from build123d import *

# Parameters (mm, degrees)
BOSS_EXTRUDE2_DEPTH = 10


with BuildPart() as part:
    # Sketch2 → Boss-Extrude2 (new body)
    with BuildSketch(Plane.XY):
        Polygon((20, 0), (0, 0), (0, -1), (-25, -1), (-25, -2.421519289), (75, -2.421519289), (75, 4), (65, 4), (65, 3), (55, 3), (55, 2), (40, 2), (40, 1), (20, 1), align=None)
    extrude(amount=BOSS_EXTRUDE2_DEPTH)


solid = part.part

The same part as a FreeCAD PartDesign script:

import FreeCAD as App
import Part
import Sketcher
from FreeCAD import Vector

doc = App.newDocument("Part")
body = doc.addObject("PartDesign::Body", "Body")

# Sketch on XY plane
sketch1 = doc.addObject("Sketcher::SketchObject", "Sketch")
body.addObject(sketch1)
sketch1.AttachmentSupport = (doc.XY_Plane, [""])
sketch1.MapMode = "FlatFace"
sketch1.addGeometry(Part.LineSegment(Vector(20, 0, 0), Vector(0, 0, 0)), False)
sketch1.addGeometry(Part.LineSegment(Vector(0, 0, 0), Vector(0, -1, 0)), False)
sketch1.addGeometry(Part.LineSegment(Vector(0, -1, 0), Vector(-25, -1, 0)), False)
sketch1.addGeometry(Part.LineSegment(Vector(-25, -1, 0), Vector(-25, -2.4, 0)), False)
sketch1.addGeometry(Part.LineSegment(Vector(-25, -2.4, 0), Vector(75, -2.4, 0)), False)
sketch1.addGeometry(Part.LineSegment(Vector(75, -2.4, 0), Vector(75, 4, 0)), False)
sketch1.addGeometry(Part.LineSegment(Vector(75, 4, 0), Vector(65, 4, 0)), False)
sketch1.addGeometry(Part.LineSegment(Vector(65, 4, 0), Vector(65, 3, 0)), False)
sketch1.addGeometry(Part.LineSegment(Vector(65, 3, 0), Vector(55, 3, 0)), False)
sketch1.addGeometry(Part.LineSegment(Vector(55, 3, 0), Vector(55, 2, 0)), False)
sketch1.addGeometry(Part.LineSegment(Vector(55, 2, 0), Vector(40, 2, 0)), False)
sketch1.addGeometry(Part.LineSegment(Vector(40, 2, 0), Vector(40, 1, 0)), False)
sketch1.addGeometry(Part.LineSegment(Vector(40, 1, 0), Vector(20, 1, 0)), False)
sketch1.addGeometry(Part.LineSegment(Vector(20, 1, 0), Vector(20, 0, 0)), False)
sketch1.addConstraint(Sketcher.Constraint("Coincident", 0, 2, 1, 1))
sketch1.addConstraint(Sketcher.Constraint("Coincident", 1, 2, 2, 1))
sketch1.addConstraint(Sketcher.Constraint("Coincident", 2, 2, 3, 1))
sketch1.addConstraint(Sketcher.Constraint("Coincident", 3, 2, 4, 1))
sketch1.addConstraint(Sketcher.Constraint("Coincident", 4, 2, 5, 1))
sketch1.addConstraint(Sketcher.Constraint("Coincident", 5, 2, 6, 1))
sketch1.addConstraint(Sketcher.Constraint("Coincident", 6, 2, 7, 1))
sketch1.addConstraint(Sketcher.Constraint("Coincident", 7, 2, 8, 1))
sketch1.addConstraint(Sketcher.Constraint("Coincident", 8, 2, 9, 1))
sketch1.addConstraint(Sketcher.Constraint("Coincident", 9, 2, 10, 1))
sketch1.addConstraint(Sketcher.Constraint("Coincident", 10, 2, 11, 1))
sketch1.addConstraint(Sketcher.Constraint("Coincident", 11, 2, 12, 1))
sketch1.addConstraint(Sketcher.Constraint("Coincident", 12, 2, 13, 1))
sketch1.addConstraint(Sketcher.Constraint("Coincident", 13, 2, 0, 1))
sketch1.addConstraint(Sketcher.Constraint("Horizontal", 0))
sketch1.addConstraint(Sketcher.Constraint("Vertical", 1))
sketch1.addConstraint(Sketcher.Constraint("Horizontal", 2))
sketch1.addConstraint(Sketcher.Constraint("Vertical", 3))
sketch1.addConstraint(Sketcher.Constraint("Horizontal", 4))
sketch1.addConstraint(Sketcher.Constraint("Vertical", 5))
sketch1.addConstraint(Sketcher.Constraint("Horizontal", 6))
sketch1.addConstraint(Sketcher.Constraint("Vertical", 7))
sketch1.addConstraint(Sketcher.Constraint("Horizontal", 8))
sketch1.addConstraint(Sketcher.Constraint("Vertical", 9))
sketch1.addConstraint(Sketcher.Constraint("Horizontal", 10))
sketch1.addConstraint(Sketcher.Constraint("Vertical", 11))
sketch1.addConstraint(Sketcher.Constraint("Horizontal", 12))
sketch1.addConstraint(Sketcher.Constraint("Vertical", 13))
sketch1.addConstraint(Sketcher.Constraint("Coincident", 0, 2, -1, 1))
sketch1.addConstraint(Sketcher.Constraint("Equal", 6, 8))
sketch1.addConstraint(Sketcher.Constraint("Equal", 0, 12))
sketch1.addConstraint(Sketcher.Constraint("Equal", 1, 7))
sketch1.addConstraint(Sketcher.Constraint("Equal", 7, 9))
sketch1.addConstraint(Sketcher.Constraint("Equal", 9, 11))
sketch1.addConstraint(Sketcher.Constraint("Equal", 11, 13))
sketch1.addConstraint(Sketcher.Constraint("DistanceX", 0, 2, 0, 1, 20.0))
sketch1.addConstraint(Sketcher.Constraint("DistanceX", 2, 2, 2, 1, 25.0))
sketch1.addConstraint(Sketcher.Constraint("DistanceX", 4, 1, 4, 2, 100.0))
sketch1.addConstraint(Sketcher.Constraint("DistanceX", 6, 2, 6, 1, 10.0))
sketch1.addConstraint(Sketcher.Constraint("DistanceY", 1, 2, 1, 1, 1.0))
sketch1.addConstraint(Sketcher.Constraint("DistanceY", 3, 2, 3, 1, 1.421519))
pad1 = doc.addObject("PartDesign::Pad", "Pad")
body.addObject(pad1)
pad1.Profile = sketch1
pad1.Length = 10

doc.recompute()
